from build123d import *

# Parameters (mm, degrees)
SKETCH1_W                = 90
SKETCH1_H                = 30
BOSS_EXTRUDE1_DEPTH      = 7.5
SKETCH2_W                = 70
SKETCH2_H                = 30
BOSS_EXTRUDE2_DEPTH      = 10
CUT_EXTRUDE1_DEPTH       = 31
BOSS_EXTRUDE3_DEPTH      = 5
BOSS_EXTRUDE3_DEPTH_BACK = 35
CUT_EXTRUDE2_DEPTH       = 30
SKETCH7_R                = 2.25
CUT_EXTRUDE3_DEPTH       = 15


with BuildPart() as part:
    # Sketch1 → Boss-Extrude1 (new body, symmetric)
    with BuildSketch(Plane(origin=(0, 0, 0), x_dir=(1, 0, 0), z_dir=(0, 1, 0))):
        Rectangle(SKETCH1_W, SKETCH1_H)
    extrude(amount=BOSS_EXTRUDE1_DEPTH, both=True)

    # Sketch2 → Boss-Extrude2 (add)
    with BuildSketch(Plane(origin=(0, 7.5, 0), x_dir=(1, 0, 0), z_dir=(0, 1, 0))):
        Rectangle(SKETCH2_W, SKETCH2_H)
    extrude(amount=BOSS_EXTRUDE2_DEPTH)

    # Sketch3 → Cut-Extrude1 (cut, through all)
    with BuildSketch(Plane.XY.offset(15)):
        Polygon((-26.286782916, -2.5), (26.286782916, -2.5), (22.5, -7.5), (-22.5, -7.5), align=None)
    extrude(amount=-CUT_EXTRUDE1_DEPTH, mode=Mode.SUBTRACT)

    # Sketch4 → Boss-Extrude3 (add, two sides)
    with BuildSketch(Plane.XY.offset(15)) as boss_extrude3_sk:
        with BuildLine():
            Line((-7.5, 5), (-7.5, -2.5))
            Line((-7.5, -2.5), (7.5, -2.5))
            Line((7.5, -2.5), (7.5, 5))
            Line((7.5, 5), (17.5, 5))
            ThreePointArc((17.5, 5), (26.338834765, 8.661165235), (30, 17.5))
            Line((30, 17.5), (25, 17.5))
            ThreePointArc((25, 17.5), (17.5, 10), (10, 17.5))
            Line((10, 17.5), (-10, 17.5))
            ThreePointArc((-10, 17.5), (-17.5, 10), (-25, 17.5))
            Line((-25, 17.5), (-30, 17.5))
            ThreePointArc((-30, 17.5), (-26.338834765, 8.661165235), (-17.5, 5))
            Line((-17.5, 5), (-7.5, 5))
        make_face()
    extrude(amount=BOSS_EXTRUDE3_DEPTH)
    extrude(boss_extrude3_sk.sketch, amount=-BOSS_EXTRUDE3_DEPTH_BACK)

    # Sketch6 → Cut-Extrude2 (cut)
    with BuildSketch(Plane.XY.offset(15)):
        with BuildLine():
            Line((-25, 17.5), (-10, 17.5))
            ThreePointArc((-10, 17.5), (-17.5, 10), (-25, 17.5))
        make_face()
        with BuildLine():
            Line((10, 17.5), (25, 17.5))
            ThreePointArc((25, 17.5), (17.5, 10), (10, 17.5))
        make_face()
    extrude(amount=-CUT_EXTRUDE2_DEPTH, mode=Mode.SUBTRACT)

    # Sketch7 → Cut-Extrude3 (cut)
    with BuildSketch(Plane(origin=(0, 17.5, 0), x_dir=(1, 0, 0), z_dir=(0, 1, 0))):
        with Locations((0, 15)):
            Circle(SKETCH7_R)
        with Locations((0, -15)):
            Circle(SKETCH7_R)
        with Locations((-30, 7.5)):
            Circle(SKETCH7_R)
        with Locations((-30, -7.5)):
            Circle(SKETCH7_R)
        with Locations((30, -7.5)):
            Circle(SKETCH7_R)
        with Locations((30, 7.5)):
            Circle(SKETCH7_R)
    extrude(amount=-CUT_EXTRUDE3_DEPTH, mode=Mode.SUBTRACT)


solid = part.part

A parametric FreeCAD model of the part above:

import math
import FreeCAD as App
import Part
import Sketcher
Q = App.Units.Quantity

doc = App.newDocument("Part")
body = doc.addObject("PartDesign::Body", "Body")

# Sketch on XZ plane
sketch1 = body.newObject("Sketcher::SketchObject", "Sketch")
sketch1.AttachmentSupport = (doc.getObject("XZ_Plane"), [""])
sketch1.MapMode = "FlatFace"
sketch1.addGeometry(Part.LineSegment(App.Vector(-45, -15, 0), App.Vector(-45, 15, 0)), False)
sketch1.addGeometry(Part.LineSegment(App.Vector(-45, 15, 0), App.Vector(45, 15, 0)), False)
sketch1.addGeometry(Part.LineSegment(App.Vector(45, 15, 0), App.Vector(45, -15, 0)), False)
sketch1.addGeometry(Part.LineSegment(App.Vector(45, -15, 0), App.Vector(-45, -15, 0)), False)
sketch1.addConstraint(Sketcher.Constraint("Coincident", 0, 2, 1, 1))
sketch1.addConstraint(Sketcher.Constraint("Coincident", 1, 2, 2, 1))
sketch1.addConstraint(Sketcher.Constraint("Coincident", 2, 2, 3, 1))
sketch1.addConstraint(Sketcher.Constraint("Coincident", 3, 2, 0, 1))
sketch1.addConstraint(Sketcher.Constraint("Vertical", 0))
sketch1.addConstraint(Sketcher.Constraint("Horizontal", 1))
sketch1.addConstraint(Sketcher.Constraint("Vertical", 2))
sketch1.addConstraint(Sketcher.Constraint("Horizontal", 3))
sketch1.addConstraint(Sketcher.Constraint("Symmetric", 0, 2, 2, 2, -1, 1))
sketch1.addConstraint(Sketcher.Constraint("DistanceX", 1, 1, 1, 2, Q("90 mm")))
sketch1.addConstraint(Sketcher.Constraint("DistanceY", 0, 1, 0, 2, Q("30 mm")))
pad1 = body.newObject("PartDesign::Pad", "Pad")
pad1.Profile = sketch1
pad1.Length = 15
pad1.Midplane = True

# Sketch on XZ plane
sketch2 = body.newObject("Sketcher::SketchObject", "Sketch001")
sketch2.AttachmentSupport = (doc.getObject("XZ_Plane"), [""])
sketch2.MapMode = "FlatFace"
sketch2.AttachmentOffset = App.Placement(App.Vector(0, 0, -7.5), App.Rotation())
sketch2.addGeometry(Part.LineSegment(App.Vector(-35, -15, 0), App.Vector(-35, 15, 0)), False)
sketch2.addGeometry(Part.LineSegment(App.Vector(-35, 15, 0), App.Vector(35, 15, 0)), False)
sketch2.addGeometry(Part.LineSegment(App.Vector(35, 15, 0), App.Vector(35, -15, 0)), False)
sketch2.addGeometry(Part.LineSegment(App.Vector(35, -15, 0), App.Vector(-35, -15, 0)), False)
sketch2.addConstraint(Sketcher.Constraint("Coincident", 0, 2, 1, 1))
sketch2.addConstraint(Sketcher.Constraint("Coincident", 1, 2, 2, 1))
sketch2.addConstraint(Sketcher.Constraint("Coincident", 2, 2, 3, 1))
sketch2.addConstraint(Sketcher.Constraint("Coincident", 3, 2, 0, 1))
sketch2.addConstraint(Sketcher.Constraint("Vertical", 0))
sketch2.addConstraint(Sketcher.Constraint("Horizontal", 1))
sketch2.addConstraint(Sketcher.Constraint("Vertical", 2))
sketch2.addConstraint(Sketcher.Constraint("Horizontal", 3))
sketch2.addConstraint(Sketcher.Constraint("Symmetric", 0, 2, 2, 2, -1, 1))
sketch2.addConstraint(Sketcher.Constraint("DistanceX", 1, 1, 1, 2, Q("70 mm")))
sketch2.addConstraint(Sketcher.Constraint("DistanceY", 0, 1, 0, 2, Q("30 mm")))
pad2 = body.newObject("PartDesign::Pad", "Pad001")
pad2.Profile = sketch2
pad2.Length = 10
pad2.Reversed = True

# Sketch on XY plane
sketch3 = body.newObject("Sketcher::SketchObject", "Sketch002")
sketch3.AttachmentSupport = (doc.getObject("XY_Plane"), [""])
sketch3.MapMode = "FlatFace"
sketch3.AttachmentOffset = App.Placement(App.Vector(0, 0, 15), App.Rotation())
sketch3.addGeometry(Part.LineSegment(App.Vector(26.286783, -2.5, 0), App.Vector(-26.286783, -2.5, 0)), False)
sketch3.addGeometry(Part.LineSegment(App.Vector(-26.286783, -2.5, 0), App.Vector(-22.5, -7.5, 0)), False)
sketch3.addGeometry(Part.LineSegment(App.Vector(-22.5, -7.5, 0), App.Vector(22.5, -7.5, 0)), False)
sketch3.addGeometry(Part.LineSegment(App.Vector(22.5, -7.5, 0), App.Vector(26.286783, -2.5, 0)), False)
sketch3.addConstraint(Sketcher.Constraint("Coincident", 0, 2, 1, 1))
sketch3.addConstraint(Sketcher.Constraint("Coincident", 1, 2, 2, 1))
sketch3.addConstraint(Sketcher.Constraint("Coincident", 2, 2, 3, 1))
sketch3.addConstraint(Sketcher.Constraint("Coincident", 3, 2, 0, 1))
sketch3.addConstraint(Sketcher.Constraint("Horizontal", 0))
sketch3.addConstraint(Sketcher.Constraint("Horizontal", 2))
sketch3.addConstraint(Sketcher.Constraint("Equal", 1, 3))
sketch3.addConstraint(Sketcher.Constraint("DistanceX", 2, 1, 2, 2, Q("45 mm")))
sketch3.addConstraint(Sketcher.Constraint("DistanceY", 1, 2, 0, 2, Q("5 mm")))
sketch3.addConstraint(Sketcher.Constraint("DistanceY", 0, 2, -1, 1, Q("2.5 mm")))
sketch3.addConstraint(Sketcher.Constraint("DistanceX", 1, 2, -1, 1, Q("22.5 mm")))
sketch3.addConstraint(Sketcher.Constraint("Distance", 1, Q("6.272139 mm")))
pocket1 = body.newObject("PartDesign::Pocket", "Pocket")
pocket1.Profile = sketch3
pocket1.Type = "ThroughAll"

# Sketch on XY plane
sketch4 = body.newObject("Sketcher::SketchObject", "Sketch003")
sketch4.AttachmentSupport = (doc.getObject("XY_Plane"), [""])
sketch4.MapMode = "FlatFace"
sketch4.AttachmentOffset = App.Placement(App.Vector(0, 0, 15), App.Rotation())
sketch4.addGeometry(Part.LineSegment(App.Vector(-7.5, 5, 0), App.Vector(-7.5, -2.5, 0)), False)
sketch4.addGeometry(Part.LineSegment(App.Vector(-7.5, -2.5, 0), App.Vector(7.5, -2.5, 0)), False)
sketch4.addGeometry(Part.LineSegment(App.Vector(7.5, -2.5, 0), App.Vector(7.5, 5, 0)), False)
sketch4.addGeometry(Part.LineSegment(App.Vector(7.5, 5, 0), App.Vector(17.5, 5, 0)), False)
sketch4.addGeometry(Part.ArcOfCircle(Part.Circle(App.Vector(17.5, 17.5, 0), App.Vector(0, 0, 1), 12.5), math.radians(-90), math.radians(0)), False)
sketch4.addGeometry(Part.LineSegment(App.Vector(30, 17.5, 0), App.Vector(25, 17.5, 0)), False)
sketch4.addGeometry(Part.ArcOfCircle(Part.Circle(App.Vector(17.5, 17.5, 0), App.Vector(0, 0, 1), 7.5), math.radians(180), math.radians(360)), False)
sketch4.addGeometry(Part.LineSegment(App.Vector(10, 17.5, 0), App.Vector(-10, 17.5, 0)), False)
sketch4.addGeometry(Part.ArcOfCircle(Part.Circle(App.Vector(-17.5, 17.5, 0), App.Vector(0, 0, 1), 7.5), math.radians(180), math.radians(360)), False)
sketch4.addGeometry(Part.LineSegment(App.Vector(-25, 17.5, 0), App.Vector(-30, 17.5, 0)), False)
sketch4.addGeometry(Part.ArcOfCircle(Part.Circle(App.Vector(-17.5, 17.5, 0), App.Vector(0, 0, 1), 12.5), math.radians(180), math.radians(270)), False)
sketch4.addGeometry(Part.LineSegment(App.Vector(-17.5, 5, 0), App.Vector(-7.5, 5, 0)), False)
sketch4.addConstraint(Sketcher.Constraint("Coincident", 0, 2, 1, 1))
sketch4.addConstraint(Sketcher.Constraint("Coincident", 1, 2, 2, 1))
sketch4.addConstraint(Sketcher.Constraint("Coincident", 2, 2, 3, 1))
sketch4.addConstraint(Sketcher.Constraint("Tangent", 3, 2, 4, 1))
sketch4.addConstraint(Sketcher.Constraint("Coincident", 4, 2, 5, 1))
sketch4.addConstraint(Sketcher.Constraint("Coincident", 5, 2, 6, 2))
sketch4.addConstraint(Sketcher.Constraint("Coincident", 6, 1, 7, 1))
sketch4.addConstraint(Sketcher.Constraint("Coincident", 7, 2, 8, 2))
sketch4.addConstraint(Sketcher.Constraint("Coincident", 8, 1, 9, 1))
sketch4.addConstraint(Sketcher.Constraint("Coincident", 9, 2, 10, 1))
sketch4.addConstraint(Sketcher.Constraint("Tangent", 10, 2, 11, 1))
sketch4.addConstraint(Sketcher.Constraint("Coincident", 11, 2, 0, 1))
sketch4.addConstraint(Sketcher.Constraint("Vertical", 0))
sketch4.addConstraint(Sketcher.Constraint("Horizontal", 1))
sketch4.addConstraint(Sketcher.Constraint("Vertical", 2))
sketch4.addConstraint(Sketcher.Constraint("Horizontal", 3))
sketch4.addConstraint(Sketcher.Constraint("Horizontal", 5))
sketch4.addConstraint(Sketcher.Constraint("Horizontal", 7))
sketch4.addConstraint(Sketcher.Constraint("Horizontal", 9))
sketch4.addConstraint(Sketcher.Constraint("Horizontal", 11))
sketch4.addConstraint(Sketcher.Constraint("Coincident", 6, 3, 4, 3))
sketch4.addConstraint(Sketcher.Constraint("Coincident", 10, 3, 8, 3))
sketch4.addConstraint(Sketcher.Constraint("Equal", 6, 8))
sketch4.addConstraint(Sketcher.Constraint("Equal", 4, 10))
sketch4.addConstraint(Sketcher.Constraint("Symmetric", 4, 3, 8, 3, -2))
sketch4.addConstraint(Sketcher.Constraint("Horizontal", 10, 3, 4, 2))
sketch4.addConstraint(Sketcher.Constraint("Horizontal", 5, 2, 6, 1))
sketch4.addConstraint(Sketcher.Constraint("Horizontal", 7, 2, 8, 1))
sketch4.addConstraint(Sketcher.Constraint("Equal", 3, 11))
sketch4.addConstraint(Sketcher.Constraint("Radius", 4, Q("12.5 mm")))
sketch4.addConstraint(Sketcher.Constraint("Radius", 6, Q("7.5 mm")))
sketch4.addConstraint(Sketcher.Constraint("DistanceX", 1, 1, 1, 2, Q("15 mm")))
sketch4.addConstraint(Sketcher.Constraint("DistanceX", 3, 1, 3, 2, Q("10 mm")))
sketch4.addConstraint(Sketcher.Constraint("DistanceY", 0, 2, 0, 1, Q("7.5 mm")))
sketch4.addConstraint(Sketcher.Constraint("DistanceY", -1, 1, 2, 2, Q("5 mm")))
pad3 = body.newObject("PartDesign::Pad", "Pad002")
pad3.Profile = sketch4
pad3.Type = "TwoLengths"
pad3.Length = 5
pad3.Length2 = 35

# Sketch on XY plane
sketch5 = body.newObject("Sketcher::SketchObject", "Sketch004")
sketch5.AttachmentSupport = (doc.getObject("XY_Plane"), [""])
sketch5.MapMode = "FlatFace"
sketch5.AttachmentOffset = App.Placement(App.Vector(0, 0, 15), App.Rotation())
sketch5.addGeometry(Part.LineSegment(App.Vector(-10, 17.5, 0), App.Vector(-25, 17.5, 0)), False)
sketch5.addGeometry(Part.ArcOfCircle(Part.Circle(App.Vector(-17.5, 17.5, 0), App.Vector(0, 0, 1), 7.5), math.radians(180), math.radians(360)), False)
sketch5.addGeometry(Part.LineSegment(App.Vector(25, 17.5, 0), App.Vector(10, 17.5, 0)), False)
sketch5.addGeometry(Part.ArcOfCircle(Part.Circle(App.Vector(17.5, 17.5, 0), App.Vector(0, 0, 1), 7.5), math.radians(180), math.radians(360)), False)
sketch5.addConstraint(Sketcher.Constraint("Coincident", 0, 1, 1, 2))
sketch5.addConstraint(Sketcher.Constraint("Coincident", 1, 1, 0, 2))
sketch5.addConstraint(Sketcher.Constraint("Coincident", 2, 1, 3, 2))
sketch5.addConstraint(Sketcher.Constraint("Coincident", 3, 1, 2, 2))
sketch5.addConstraint(Sketcher.Constraint("Horizontal", 0))
sketch5.addConstraint(Sketcher.Constraint("Horizontal", 2))
sketch5.addConstraint(Sketcher.Constraint("Equal", 1, 3))
sketch5.addConstraint(Sketcher.Constraint("Symmetric", 1, 3, 3, 3, -2))
sketch5.addConstraint(Sketcher.Constraint("Horizontal", 3, 3, 0, 1))
sketch5.addConstraint(Sketcher.Constraint("Horizontal", 1, 1, 2, 1))
sketch5.addConstraint(Sketcher.Constraint("Radius", 1, Q("7.5 mm")))
sketch5.addConstraint(Sketcher.Constraint("DistanceX", 0, 1, -1, 1, Q("10 mm")))
sketch5.addConstraint(Sketcher.Constraint("DistanceY", -1, 1, 1, 3, Q("17.5 mm")))
pocket2 = body.newObject("PartDesign::Pocket", "Pocket001")
pocket2.Profile = sketch5
pocket2.Length = 30

# Sketch on XZ plane
sketch6 = body.newObject("Sketcher::SketchObject", "Sketch005")
sketch6.AttachmentSupport = (doc.getObject("XZ_Plane"), [""])
sketch6.MapMode = "FlatFace"
sketch6.AttachmentOffset = App.Placement(App.Vector(0, 0, -17.5), App.Rotation())
sketch6.addGeometry(Part.Circle(App.Vector(0, -15, 0), App.Vector(0, 0, 1), 2.25), False)
sketch6.addGeometry(Part.Circle(App.Vector(0, 15, 0), App.Vector(0, 0, 1), 2.25), False)
sketch6.addGeometry(Part.Circle(App.Vector(-30, -7.5, 0), App.Vector(0, 0, 1), 2.25), False)
sketch6.addGeometry(Part.Circle(App.Vector(-30, 7.5, 0), App.Vector(0, 0, 1), 2.25), False)
sketch6.addGeometry(Part.Circle(App.Vector(30, 7.5, 0), App.Vector(0, 0, 1), 2.25), False)
sketch6.addGeometry(Part.Circle(App.Vector(30, -7.5, 0), App.Vector(0, 0, 1), 2.25), False)
sketch6.addConstraint(Sketcher.Constraint("Equal", 0, 1))
sketch6.addConstraint(Sketcher.Constraint("Equal", 1, 2))
sketch6.addConstraint(Sketcher.Constraint("Equal", 2, 3))
sketch6.addConstraint(Sketcher.Constraint("Equal", 3, 4))
sketch6.addConstraint(Sketcher.Constraint("Equal", 4, 5))
sketch6.addConstraint(Sketcher.Constraint("Symmetric", 0, 3, 1, 3, -1, 1))
sketch6.addConstraint(Sketcher.Constraint("Symmetric", 2, 3, 4, 3, -1, 1))
sketch6.addConstraint(Sketcher.Constraint("Symmetric", 3, 3, 5, 3, -1, 1))
sketch6.addConstraint(Sketcher.Constraint("Symmetric", 3, 3, 4, 3, -2))
sketch6.addConstraint(Sketcher.Constraint("PointOnObject", 0, 3, -2))
sketch6.addConstraint(Sketcher.Constraint("Diameter", 0, Q("4.5 mm")))
sketch6.addConstraint(Sketcher.Constraint("DistanceY", 0, 3, -1, 1, Q("15 mm")))
sketch6.addConstraint(Sketcher.Constraint("DistanceX", 2, 3, -1, 1, Q("30 mm")))
sketch6.addConstraint(Sketcher.Constraint("DistanceY", 2, 3, 3, 3, Q("15 mm")))
pocket3 = body.newObject("PartDesign::Pocket", "Pocket002")
pocket3.Profile = sketch6
pocket3.Length = 15
pocket3.Reversed = True

doc.recompute()
